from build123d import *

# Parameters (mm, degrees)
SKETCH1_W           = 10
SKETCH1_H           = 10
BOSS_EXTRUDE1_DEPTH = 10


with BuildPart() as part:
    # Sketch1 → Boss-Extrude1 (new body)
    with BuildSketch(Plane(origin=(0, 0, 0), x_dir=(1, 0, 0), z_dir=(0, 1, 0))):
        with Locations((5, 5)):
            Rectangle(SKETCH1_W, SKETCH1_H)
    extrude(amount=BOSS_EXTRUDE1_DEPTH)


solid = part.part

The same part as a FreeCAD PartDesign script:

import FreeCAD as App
import Part
import Sketcher


def add_polygon(sketch, points):
    """Adds a closed chain of lines whose ends are joined by coincident constraints."""
    first, n = sketch.GeometryCount, len(points)
    for a, b in zip(points, points[1:] + points[:1]):
        sketch.addGeometry(Part.LineSegment(App.Vector(*a, 0), App.Vector(*b, 0)), False)
    for i in range(n):
        sketch.addConstraint(Sketcher.Constraint("Coincident", first + i, 2, first + (i + 1) % n, 1))

doc = App.newDocument("Part")
params = doc.addObject("Spreadsheet::Sheet", "Params")
for row, (alias, value) in enumerate([
    ("sketch1_width", "10 mm"),
    ("pad1_length", "10 mm"),
], start=1):
    params.set(f"A{row}", alias)
    params.set(f"B{row}", "=" + value)
    params.setAlias(f"B{row}", alias)

body = doc.addObject("PartDesign::Body", "Body")

sketch1 = body.newObject("Sketcher::SketchObject", "Sketch")
sketch1.AttachmentSupport = (doc.getObject("XZ_Plane"), [""])
sketch1.MapMode = "FlatFace"
add_polygon(sketch1, [(0, -10), (0, 0), (10, 0), (10, -10)])
sketch1.addConstraint([
    Sketcher.Constraint("Vertical", 0),
    Sketcher.Constraint("Horizontal", 1),
    Sketcher.Constraint("Vertical", 2),
    Sketcher.Constraint("Horizontal", 3),
    Sketcher.Constraint("Coincident", 0, 2, -1, 1),
    Sketcher.Constraint("Equal", 3, 0),
    Sketcher.Constraint("DistanceX", 1, 1, 1, 2, 10.0),
])
sketch1.setExpression("Constraints[10]", "Params.sketch1_width")
pad1 = body.newObject("PartDesign::Pad", "Pad")
pad1.Profile = sketch1
pad1.setExpression("Length", "Params.pad1_length")
pad1.Reversed = True

doc.recompute()
